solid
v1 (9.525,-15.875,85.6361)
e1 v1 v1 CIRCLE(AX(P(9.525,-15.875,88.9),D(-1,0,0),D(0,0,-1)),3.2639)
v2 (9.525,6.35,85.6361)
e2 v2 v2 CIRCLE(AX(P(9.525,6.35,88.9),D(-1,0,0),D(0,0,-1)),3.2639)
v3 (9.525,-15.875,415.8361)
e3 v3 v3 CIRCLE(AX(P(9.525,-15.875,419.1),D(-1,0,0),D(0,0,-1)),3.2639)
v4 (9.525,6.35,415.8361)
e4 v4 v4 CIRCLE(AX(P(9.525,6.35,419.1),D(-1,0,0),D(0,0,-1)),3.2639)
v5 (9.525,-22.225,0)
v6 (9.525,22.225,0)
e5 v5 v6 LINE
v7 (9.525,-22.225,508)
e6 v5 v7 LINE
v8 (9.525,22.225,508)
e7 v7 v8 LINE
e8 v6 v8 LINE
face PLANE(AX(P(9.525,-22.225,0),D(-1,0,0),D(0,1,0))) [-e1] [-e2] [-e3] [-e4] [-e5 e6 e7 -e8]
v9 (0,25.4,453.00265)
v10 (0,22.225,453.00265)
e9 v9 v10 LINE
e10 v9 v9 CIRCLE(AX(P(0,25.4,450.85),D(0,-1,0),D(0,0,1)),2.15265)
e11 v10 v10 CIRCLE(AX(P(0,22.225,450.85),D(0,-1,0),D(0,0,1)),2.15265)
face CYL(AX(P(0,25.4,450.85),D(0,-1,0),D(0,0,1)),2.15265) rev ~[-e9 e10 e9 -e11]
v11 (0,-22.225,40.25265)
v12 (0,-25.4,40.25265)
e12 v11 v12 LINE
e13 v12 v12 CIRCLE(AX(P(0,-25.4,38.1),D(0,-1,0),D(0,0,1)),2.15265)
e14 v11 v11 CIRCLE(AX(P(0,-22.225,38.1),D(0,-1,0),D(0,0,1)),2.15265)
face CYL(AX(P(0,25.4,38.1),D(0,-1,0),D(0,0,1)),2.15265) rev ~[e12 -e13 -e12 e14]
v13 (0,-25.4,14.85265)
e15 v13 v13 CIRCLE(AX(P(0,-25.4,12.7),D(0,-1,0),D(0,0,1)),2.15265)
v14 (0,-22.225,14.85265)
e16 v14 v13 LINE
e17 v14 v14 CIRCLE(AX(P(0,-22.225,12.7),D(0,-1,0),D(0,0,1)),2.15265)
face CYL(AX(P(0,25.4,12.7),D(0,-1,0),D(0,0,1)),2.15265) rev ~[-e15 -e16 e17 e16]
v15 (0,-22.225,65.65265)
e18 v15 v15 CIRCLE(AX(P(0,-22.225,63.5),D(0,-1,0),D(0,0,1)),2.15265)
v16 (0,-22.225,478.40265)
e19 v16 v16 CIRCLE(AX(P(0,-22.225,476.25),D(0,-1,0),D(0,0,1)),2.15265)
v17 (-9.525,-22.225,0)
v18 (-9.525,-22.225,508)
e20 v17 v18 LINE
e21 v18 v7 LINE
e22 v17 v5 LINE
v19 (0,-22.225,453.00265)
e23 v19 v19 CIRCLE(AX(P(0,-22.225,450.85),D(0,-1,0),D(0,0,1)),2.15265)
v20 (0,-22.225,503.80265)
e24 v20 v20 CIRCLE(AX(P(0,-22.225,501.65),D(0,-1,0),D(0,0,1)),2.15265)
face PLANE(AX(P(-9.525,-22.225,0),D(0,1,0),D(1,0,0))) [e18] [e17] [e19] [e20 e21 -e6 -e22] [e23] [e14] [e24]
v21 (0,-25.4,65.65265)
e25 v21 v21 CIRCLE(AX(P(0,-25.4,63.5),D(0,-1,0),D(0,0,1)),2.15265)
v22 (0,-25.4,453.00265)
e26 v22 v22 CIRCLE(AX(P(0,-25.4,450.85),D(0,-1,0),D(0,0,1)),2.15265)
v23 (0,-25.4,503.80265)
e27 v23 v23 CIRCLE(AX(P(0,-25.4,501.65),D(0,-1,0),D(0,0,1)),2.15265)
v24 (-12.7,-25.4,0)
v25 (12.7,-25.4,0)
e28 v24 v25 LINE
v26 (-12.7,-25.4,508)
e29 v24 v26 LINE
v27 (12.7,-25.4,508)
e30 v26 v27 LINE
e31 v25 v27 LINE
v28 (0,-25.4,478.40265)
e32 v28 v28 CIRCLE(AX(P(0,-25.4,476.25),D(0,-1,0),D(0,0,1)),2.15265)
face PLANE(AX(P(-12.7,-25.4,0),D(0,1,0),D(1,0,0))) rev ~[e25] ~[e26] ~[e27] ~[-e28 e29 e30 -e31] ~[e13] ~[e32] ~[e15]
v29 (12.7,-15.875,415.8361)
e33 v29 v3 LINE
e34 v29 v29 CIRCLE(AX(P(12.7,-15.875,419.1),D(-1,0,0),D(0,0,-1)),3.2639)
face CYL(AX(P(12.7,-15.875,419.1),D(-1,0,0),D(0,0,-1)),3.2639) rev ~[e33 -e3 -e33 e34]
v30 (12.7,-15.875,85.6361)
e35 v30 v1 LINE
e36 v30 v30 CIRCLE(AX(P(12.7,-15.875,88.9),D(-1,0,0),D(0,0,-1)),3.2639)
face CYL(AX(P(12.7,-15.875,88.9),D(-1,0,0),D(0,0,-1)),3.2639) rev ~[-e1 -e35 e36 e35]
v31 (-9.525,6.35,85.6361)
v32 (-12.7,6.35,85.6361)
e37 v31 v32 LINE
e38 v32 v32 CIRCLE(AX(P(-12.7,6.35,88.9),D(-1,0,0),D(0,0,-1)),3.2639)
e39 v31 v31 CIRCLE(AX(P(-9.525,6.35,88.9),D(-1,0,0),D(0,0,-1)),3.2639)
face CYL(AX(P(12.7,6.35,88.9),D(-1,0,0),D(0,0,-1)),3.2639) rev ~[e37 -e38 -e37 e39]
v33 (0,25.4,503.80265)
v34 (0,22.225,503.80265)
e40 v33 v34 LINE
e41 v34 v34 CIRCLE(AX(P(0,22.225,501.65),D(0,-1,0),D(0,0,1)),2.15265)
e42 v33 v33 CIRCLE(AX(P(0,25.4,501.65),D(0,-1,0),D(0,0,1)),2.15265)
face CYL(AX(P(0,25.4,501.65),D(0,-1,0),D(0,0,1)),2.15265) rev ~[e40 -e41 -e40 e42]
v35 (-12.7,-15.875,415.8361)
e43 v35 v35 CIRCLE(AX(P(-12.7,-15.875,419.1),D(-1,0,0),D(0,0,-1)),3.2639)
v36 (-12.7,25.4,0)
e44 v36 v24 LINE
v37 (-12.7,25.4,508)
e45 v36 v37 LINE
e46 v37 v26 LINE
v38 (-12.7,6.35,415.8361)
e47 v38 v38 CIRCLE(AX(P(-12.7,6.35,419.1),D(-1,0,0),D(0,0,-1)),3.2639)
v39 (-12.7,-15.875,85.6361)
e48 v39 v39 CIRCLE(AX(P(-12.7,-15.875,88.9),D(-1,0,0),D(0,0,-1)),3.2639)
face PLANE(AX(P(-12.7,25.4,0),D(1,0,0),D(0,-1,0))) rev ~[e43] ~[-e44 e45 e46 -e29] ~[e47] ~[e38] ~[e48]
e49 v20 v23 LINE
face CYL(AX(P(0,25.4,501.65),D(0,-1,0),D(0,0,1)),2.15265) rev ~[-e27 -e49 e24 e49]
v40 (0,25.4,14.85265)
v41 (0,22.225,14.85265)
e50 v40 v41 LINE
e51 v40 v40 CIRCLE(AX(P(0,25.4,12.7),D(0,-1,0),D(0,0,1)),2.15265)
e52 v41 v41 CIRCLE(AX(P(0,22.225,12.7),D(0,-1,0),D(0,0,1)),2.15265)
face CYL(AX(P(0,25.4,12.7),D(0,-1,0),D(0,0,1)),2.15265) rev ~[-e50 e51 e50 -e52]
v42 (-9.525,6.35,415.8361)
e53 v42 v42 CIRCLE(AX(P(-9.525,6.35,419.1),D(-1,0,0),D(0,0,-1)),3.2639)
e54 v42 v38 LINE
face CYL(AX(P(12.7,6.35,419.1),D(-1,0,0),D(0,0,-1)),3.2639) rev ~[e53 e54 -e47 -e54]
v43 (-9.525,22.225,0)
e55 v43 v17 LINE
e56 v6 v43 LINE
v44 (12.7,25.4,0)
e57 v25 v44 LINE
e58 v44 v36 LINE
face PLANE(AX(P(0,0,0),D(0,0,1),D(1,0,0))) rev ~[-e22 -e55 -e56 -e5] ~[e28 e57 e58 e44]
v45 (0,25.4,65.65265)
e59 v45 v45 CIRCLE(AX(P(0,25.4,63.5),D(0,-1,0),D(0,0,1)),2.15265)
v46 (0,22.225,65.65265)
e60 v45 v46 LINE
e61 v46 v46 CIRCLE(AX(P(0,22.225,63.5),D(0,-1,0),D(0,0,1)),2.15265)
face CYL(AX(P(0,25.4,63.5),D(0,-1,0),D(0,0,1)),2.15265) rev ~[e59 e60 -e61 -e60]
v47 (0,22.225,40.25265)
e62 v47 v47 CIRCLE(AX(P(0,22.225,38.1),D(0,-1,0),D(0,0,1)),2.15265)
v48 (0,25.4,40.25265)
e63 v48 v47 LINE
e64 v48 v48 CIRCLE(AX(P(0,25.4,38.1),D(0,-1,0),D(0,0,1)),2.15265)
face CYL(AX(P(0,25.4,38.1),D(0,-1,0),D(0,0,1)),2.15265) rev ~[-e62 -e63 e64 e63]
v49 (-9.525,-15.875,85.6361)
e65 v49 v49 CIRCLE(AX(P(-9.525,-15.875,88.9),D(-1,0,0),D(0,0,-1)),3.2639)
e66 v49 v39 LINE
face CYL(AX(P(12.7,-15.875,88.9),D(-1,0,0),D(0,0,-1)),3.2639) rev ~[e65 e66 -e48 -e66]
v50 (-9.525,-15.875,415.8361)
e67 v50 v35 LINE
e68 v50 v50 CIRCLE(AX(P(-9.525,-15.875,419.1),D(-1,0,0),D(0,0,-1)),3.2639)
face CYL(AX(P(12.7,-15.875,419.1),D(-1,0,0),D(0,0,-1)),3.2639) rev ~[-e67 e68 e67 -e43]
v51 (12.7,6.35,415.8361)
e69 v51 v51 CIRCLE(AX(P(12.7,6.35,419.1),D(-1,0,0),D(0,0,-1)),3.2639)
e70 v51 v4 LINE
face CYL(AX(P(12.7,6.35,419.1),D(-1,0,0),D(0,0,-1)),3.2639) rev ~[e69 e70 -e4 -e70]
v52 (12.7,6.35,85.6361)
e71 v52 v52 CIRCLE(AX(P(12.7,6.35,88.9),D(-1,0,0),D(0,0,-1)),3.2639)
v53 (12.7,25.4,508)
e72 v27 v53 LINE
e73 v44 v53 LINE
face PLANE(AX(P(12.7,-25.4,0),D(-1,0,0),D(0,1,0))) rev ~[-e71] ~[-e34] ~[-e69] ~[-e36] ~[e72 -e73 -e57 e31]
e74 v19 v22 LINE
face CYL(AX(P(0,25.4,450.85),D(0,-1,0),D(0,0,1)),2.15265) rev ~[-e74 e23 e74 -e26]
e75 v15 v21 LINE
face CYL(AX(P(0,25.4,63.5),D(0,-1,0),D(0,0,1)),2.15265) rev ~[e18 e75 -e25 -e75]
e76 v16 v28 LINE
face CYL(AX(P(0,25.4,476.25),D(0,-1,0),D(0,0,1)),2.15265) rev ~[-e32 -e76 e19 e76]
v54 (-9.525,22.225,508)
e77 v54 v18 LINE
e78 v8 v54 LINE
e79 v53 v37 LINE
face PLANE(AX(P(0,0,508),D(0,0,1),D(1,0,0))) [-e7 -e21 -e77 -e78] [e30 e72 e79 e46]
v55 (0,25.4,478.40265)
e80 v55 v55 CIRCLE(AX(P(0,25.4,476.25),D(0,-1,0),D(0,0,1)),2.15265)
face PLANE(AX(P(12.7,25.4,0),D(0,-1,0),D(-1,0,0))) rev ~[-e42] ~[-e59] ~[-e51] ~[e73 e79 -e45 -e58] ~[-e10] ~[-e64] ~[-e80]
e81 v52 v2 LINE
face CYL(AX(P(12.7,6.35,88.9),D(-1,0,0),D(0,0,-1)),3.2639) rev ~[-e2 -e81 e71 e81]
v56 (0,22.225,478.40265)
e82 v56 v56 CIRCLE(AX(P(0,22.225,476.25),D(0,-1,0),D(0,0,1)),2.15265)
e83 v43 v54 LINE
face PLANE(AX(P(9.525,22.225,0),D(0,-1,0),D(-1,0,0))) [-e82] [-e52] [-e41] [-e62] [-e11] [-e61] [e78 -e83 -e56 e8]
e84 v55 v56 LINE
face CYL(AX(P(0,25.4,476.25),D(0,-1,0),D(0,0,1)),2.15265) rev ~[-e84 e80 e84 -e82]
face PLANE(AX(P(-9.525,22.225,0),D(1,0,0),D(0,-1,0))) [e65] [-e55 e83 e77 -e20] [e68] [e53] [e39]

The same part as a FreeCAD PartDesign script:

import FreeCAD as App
import Part
import Sketcher
Q = App.Units.Quantity


def add_polygon(sketch, points):
    """Adds a closed chain of lines whose ends are joined by coincident constraints."""
    first, n = sketch.GeometryCount, len(points)
    for a, b in zip(points, points[1:] + points[:1]):
        sketch.addGeometry(Part.LineSegment(App.Vector(*a, 0), App.Vector(*b, 0)), False)
    for i in range(n):
        sketch.addConstraint(Sketcher.Constraint("Coincident", first + i, 2, first + (i + 1) % n, 1))

doc = App.newDocument("Part")
params = doc.addObject("Spreadsheet::Sheet", "Params")
for row, (alias, value) in enumerate([
    ("sketch1_width", "1 in"),
    ("sketch1_height", "2 in"),
    ("pad1_length", "20 in"),
    ("hole_diameter", "0.1695 in"),
    ("hole_depth", "2 in"),
    ("sketch3_diameter", "0.257 in"),
    ("hole2_diameter", "0.257 in"),
    ("hole2_depth", "2 in"),
    ("sketch4_diameter", "0.257 in"),
    ("hole3_diameter", "0.257 in"),
    ("hole3_depth", "2 in"),
], start=1):
    params.set(f"A{row}", alias)
    params.set(f"B{row}", "=" + value)
    params.setAlias(f"B{row}", alias)

body = doc.addObject("PartDesign::Body", "Body")

# Sketch on XY plane
sketch1 = body.newObject("Sketcher::SketchObject", "Sketch")
sketch1.AttachmentSupport = (doc.getObject("XY_Plane"), [""])
sketch1.MapMode = "FlatFace"
add_polygon(sketch1, [(-13, 25), (-13, -25), (13, -25), (13, 25)])  # lines 0-3
add_polygon(sketch1, [(10, -22), (-10, -22), (-10, 22), (10, 22)])  # lines 4-7
sketch1.addConstraint([
    Sketcher.Constraint("Vertical", 0),
    Sketcher.Constraint("Horizontal", 1),
    Sketcher.Constraint("Vertical", 2),
    Sketcher.Constraint("Horizontal", 3),
    Sketcher.Constraint("Horizontal", 4),
    Sketcher.Constraint("Vertical", 5),
    Sketcher.Constraint("Horizontal", 6),
    Sketcher.Constraint("Vertical", 7),
    Sketcher.Constraint("Symmetric", 0, 2, 2, 2, -1, 1),
    Sketcher.Constraint("Symmetric", 4, 2, 6, 2, -1, 1),
    Sketcher.Constraint("DistanceX", 1, 1, 1, 2, Q("1 in")),
    Sketcher.Constraint("DistanceY", 0, 2, 0, 1, Q("2 in")),
    Sketcher.Constraint("DistanceX", 0, 2, 4, 2, Q("0.125 in")),
    Sketcher.Constraint("DistanceY", 0, 2, 4, 2, Q("0.125 in")),
])
sketch1.setExpression("Constraints[18]", "Params.sketch1_width")
sketch1.setExpression("Constraints[19]", "Params.sketch1_height")
pad1 = body.newObject("PartDesign::Pad", "Pad")
pad1.Profile = sketch1
pad1.setExpression("Length", "Params.pad1_length")

# Sketch on XZ plane
sketch2 = body.newObject("Sketcher::SketchObject", "Sketch001")
sketch2.AttachmentSupport = (doc.getObject("XZ_Plane"), [""])
sketch2.MapMode = "FlatFace"
sketch2.AttachmentOffset = App.Placement(App.Vector(0, 0, -1 * 25.4), App.Rotation())
sketch2.addGeometry([
    Part.Circle(App.Vector(0, 12.7, 0), App.Vector(0, 0, 1), 2.2),  # 0
    Part.Circle(App.Vector(0, 38.1, 0), App.Vector(0, 0, 1), 2.2),  # 1
    Part.Circle(App.Vector(0, 63.5, 0), App.Vector(0, 0, 1), 2.2),  # 2
    Part.Circle(App.Vector(0, 450.9, 0), App.Vector(0, 0, 1), 2.2),  # 3
    Part.Circle(App.Vector(0, 476.2, 0), App.Vector(0, 0, 1), 2.2),  # 4
    Part.Circle(App.Vector(0, 501.6, 0), App.Vector(0, 0, 1), 2.2),  # 5
], False)
sketch2.addConstraint([
    Sketcher.Constraint("Equal", 0, 1),
    Sketcher.Constraint("Equal", 1, 2),
    Sketcher.Constraint("Equal", 2, 3),
    Sketcher.Constraint("Equal", 3, 4),
    Sketcher.Constraint("Equal", 4, 5),
    Sketcher.Constraint("PointOnObject", 0, 3, -2),
    Sketcher.Constraint("PointOnObject", 1, 3, -2),
    Sketcher.Constraint("PointOnObject", 2, 3, -2),
    Sketcher.Constraint("PointOnObject", 3, 3, -2),
    Sketcher.Constraint("PointOnObject", 4, 3, -2),
    Sketcher.Constraint("PointOnObject", 5, 3, -2),
    Sketcher.Constraint("DistanceY", 0, 3, 1, 3, Q("1 in")),
    Sketcher.Constraint("DistanceY", 1, 3, 2, 3, Q("1 in")),
    Sketcher.Constraint("DistanceY", 3, 3, 4, 3, Q("1 in")),
    Sketcher.Constraint("DistanceY", 4, 3, 5, 3, Q("1 in")),
    Sketcher.Constraint("Diameter", 0, Q("0.1695 in")),
    Sketcher.Constraint("DistanceY", -1, 1, 0, 3, Q("0.5 in")),
    Sketcher.Constraint("DistanceY", -1, 1, 3, 3, Q("17.75 in")),
])
doc.recompute()
hole = body.newObject("PartDesign::Hole", "Hole")
hole.Profile = sketch2
hole.ThreadType = "None"
hole.setExpression("Diameter", "Params.hole_diameter")
hole.DepthType = "Dimension"
hole.setExpression("Depth", "Params.hole_depth")
hole.DrillPoint = "Angled"
hole.DrillPointAngle = 118
hole.Reversed = True

# Sketch on YZ plane
sketch3 = body.newObject("Sketcher::SketchObject", "Sketch002")
sketch3.AttachmentSupport = (doc.getObject("YZ_Plane"), [""])
sketch3.MapMode = "FlatFace"
sketch3.AttachmentOffset = App.Placement(App.Vector(0, 0, 0.5 * 25.4), App.Rotation())
sketch3.addGeometry([
    Part.Circle(App.Vector(6.3, 88.9, 0), App.Vector(0, 0, 1), 3.3),
    Part.Circle(App.Vector(-15.9, 88.9, 0), App.Vector(0, 0, 1), 3.3),
], False)
sketch3.addConstraint([
    Sketcher.Constraint("Equal", 0, 1),
    Sketcher.Constraint("Horizontal", 0, 3, 1, 3),
    Sketcher.Constraint("Diameter", 0, Q("0.257 in")),
    Sketcher.Constraint("DistanceY", -1, 1, 0, 3, Q("3.5 in")),
    Sketcher.Constraint("DistanceX", -1, 1, 0, 3, Q("0.25 in")),
    Sketcher.Constraint("DistanceX", 1, 3, -1, 1, Q("0.625 in")),
])
sketch3.setExpression("Constraints[2]", "Params.sketch3_diameter")
doc.recompute()
hole2 = body.newObject("PartDesign::Hole", "Hole001")
hole2.Profile = sketch3
hole2.ThreadType = "None"
hole2.setExpression("Diameter", "Params.hole2_diameter")
hole2.DepthType = "Dimension"
hole2.setExpression("Depth", "Params.hole2_depth")
hole2.DrillPoint = "Angled"
hole2.DrillPointAngle = 118

# Sketch on YZ plane
sketch4 = body.newObject("Sketcher::SketchObject", "Sketch003")
sketch4.AttachmentSupport = (doc.getObject("YZ_Plane"), [""])
sketch4.MapMode = "FlatFace"
sketch4.AttachmentOffset = App.Placement(App.Vector(0, 0, 0.5 * 25.4), App.Rotation())
sketch4.addGeometry([
    Part.Circle(App.Vector(6.3, 419.1, 0), App.Vector(0, 0, 1), 3.3),
    Part.Circle(App.Vector(-15.9, 419.1, 0), App.Vector(0, 0, 1), 3.3),
], False)
sketch4.addConstraint([
    Sketcher.Constraint("Equal", 0, 1),
    Sketcher.Constraint("Horizontal", 0, 3, 1, 3),
    Sketcher.Constraint("Diameter", 0, Q("0.257 in")),
    Sketcher.Constraint("DistanceY", -1, 1, 0, 3, Q("16.5 in")),
    Sketcher.Constraint("DistanceX", -1, 1, 0, 3, Q("0.25 in")),
    Sketcher.Constraint("DistanceX", 1, 3, -1, 1, Q("0.625 in")),
])
sketch4.setExpression("Constraints[2]", "Params.sketch4_diameter")
doc.recompute()
hole3 = body.newObject("PartDesign::Hole", "Hole002")
hole3.Profile = sketch4
hole3.ThreadType = "None"
hole3.setExpression("Diameter", "Params.hole3_diameter")
hole3.DepthType = "Dimension"
hole3.setExpression("Depth", "Params.hole3_depth")
hole3.DrillPoint = "Angled"
hole3.DrillPointAngle = 118

doc.recompute()
